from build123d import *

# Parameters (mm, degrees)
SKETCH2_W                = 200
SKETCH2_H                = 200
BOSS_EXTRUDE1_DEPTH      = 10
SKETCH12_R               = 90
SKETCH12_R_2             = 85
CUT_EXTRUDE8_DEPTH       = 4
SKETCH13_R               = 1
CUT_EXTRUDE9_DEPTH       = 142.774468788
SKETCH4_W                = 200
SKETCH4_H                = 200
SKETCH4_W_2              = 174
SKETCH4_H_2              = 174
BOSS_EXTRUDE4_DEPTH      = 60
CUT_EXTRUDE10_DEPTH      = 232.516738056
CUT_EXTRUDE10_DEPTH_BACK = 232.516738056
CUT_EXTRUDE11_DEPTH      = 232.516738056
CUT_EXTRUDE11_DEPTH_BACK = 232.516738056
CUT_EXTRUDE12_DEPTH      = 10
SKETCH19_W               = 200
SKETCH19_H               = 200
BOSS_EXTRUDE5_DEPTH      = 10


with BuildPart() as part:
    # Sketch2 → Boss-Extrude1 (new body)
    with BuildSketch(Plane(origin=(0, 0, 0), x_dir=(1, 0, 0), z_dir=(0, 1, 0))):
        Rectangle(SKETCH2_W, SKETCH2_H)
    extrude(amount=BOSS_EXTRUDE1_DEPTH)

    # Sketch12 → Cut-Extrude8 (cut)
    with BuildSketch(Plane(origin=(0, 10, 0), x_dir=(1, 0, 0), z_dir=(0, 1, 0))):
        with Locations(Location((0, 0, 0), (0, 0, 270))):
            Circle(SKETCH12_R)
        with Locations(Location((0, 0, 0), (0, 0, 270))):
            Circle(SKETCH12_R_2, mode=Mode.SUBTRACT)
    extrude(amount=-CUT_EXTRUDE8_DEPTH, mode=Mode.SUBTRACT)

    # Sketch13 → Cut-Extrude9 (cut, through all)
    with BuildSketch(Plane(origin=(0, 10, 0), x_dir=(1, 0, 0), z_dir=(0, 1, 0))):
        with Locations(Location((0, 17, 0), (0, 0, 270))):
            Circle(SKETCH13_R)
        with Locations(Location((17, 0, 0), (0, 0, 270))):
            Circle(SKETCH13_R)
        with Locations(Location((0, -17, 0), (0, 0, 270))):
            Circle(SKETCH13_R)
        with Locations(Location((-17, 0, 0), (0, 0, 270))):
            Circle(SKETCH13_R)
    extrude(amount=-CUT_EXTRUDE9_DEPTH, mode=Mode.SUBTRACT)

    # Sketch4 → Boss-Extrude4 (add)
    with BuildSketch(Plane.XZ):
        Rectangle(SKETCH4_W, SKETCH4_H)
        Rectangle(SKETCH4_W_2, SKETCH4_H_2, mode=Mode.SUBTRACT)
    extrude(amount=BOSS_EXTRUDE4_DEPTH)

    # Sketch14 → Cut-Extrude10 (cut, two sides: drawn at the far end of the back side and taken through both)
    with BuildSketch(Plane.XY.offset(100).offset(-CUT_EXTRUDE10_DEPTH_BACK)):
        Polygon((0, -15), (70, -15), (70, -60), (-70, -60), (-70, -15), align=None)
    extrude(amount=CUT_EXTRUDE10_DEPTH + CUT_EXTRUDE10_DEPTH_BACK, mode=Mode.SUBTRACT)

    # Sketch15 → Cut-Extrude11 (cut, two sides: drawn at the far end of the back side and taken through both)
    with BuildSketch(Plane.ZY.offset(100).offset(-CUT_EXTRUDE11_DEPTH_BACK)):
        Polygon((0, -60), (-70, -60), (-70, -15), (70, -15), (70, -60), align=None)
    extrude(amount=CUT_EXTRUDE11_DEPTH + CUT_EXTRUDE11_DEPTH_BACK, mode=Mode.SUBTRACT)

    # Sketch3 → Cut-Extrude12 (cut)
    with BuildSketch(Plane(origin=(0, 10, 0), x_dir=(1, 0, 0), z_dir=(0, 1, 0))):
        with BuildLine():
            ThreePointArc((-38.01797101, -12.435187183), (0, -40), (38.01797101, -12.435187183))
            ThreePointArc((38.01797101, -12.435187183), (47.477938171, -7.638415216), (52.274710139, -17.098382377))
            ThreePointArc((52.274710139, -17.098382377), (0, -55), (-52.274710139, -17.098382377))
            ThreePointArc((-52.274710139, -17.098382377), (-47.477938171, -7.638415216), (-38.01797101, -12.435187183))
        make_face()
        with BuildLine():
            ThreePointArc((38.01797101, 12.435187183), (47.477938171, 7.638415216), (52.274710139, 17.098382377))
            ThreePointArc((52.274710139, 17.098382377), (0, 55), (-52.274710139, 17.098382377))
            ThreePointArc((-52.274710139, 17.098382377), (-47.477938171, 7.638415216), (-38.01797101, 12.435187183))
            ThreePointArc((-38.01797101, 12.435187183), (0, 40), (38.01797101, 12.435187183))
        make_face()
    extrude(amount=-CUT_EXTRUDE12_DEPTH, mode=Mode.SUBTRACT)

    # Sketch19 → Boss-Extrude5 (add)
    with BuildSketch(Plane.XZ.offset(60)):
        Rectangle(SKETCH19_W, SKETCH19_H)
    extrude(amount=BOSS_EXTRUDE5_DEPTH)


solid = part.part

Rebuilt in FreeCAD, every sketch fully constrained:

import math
import FreeCAD as App
import Part
import Sketcher

V = App.Vector

doc = App.newDocument("Part")
params = doc.addObject("Spreadsheet::Sheet", "Params")
for row, (alias, value) in enumerate([
    ("sketch1_width", "200 mm"),
    ("pad1_length", "10 mm"),
    ("sketch2_diameter", "180 mm"),
    ("sketch2_diameter2", "170 mm"),
    ("pocket1_length", "4 mm"),
    ("sketch3_diameter", "2 mm"),
    ("sketch4_width", "200 mm"),
    ("sketch4_width2", "174 mm"),
    ("pad2_length", "60 mm"),
    ("sketch5_width", "140 mm"),
    ("sketch5_height", "45 mm"),
    ("sketch6_width", "45 mm"),
    ("sketch6_height", "140 mm"),
    ("sketch7_radius", "40 mm"),
    ("sketch7_radius2", "55 mm"),
    ("pocket5_length", "10 mm"),
    ("sketch8_width", "200 mm"),
    ("pad3_length", "10 mm"),
], start=1):
    params.set(f"A{row}", alias)
    params.set(f"B{row}", "=" + value)
    params.setAlias(f"B{row}", alias)

body = doc.addObject("PartDesign::Body", "Body")

sketch1 = body.newObject("Sketcher::SketchObject", "Sketch")
sketch1.AttachmentSupport = (doc.getObject("XZ_Plane"), [""])
sketch1.MapMode = "FlatFace"
sketch1.addGeometry(Part.LineSegment(V(-100, -100, 0), V(-100, 100, 0)), False)
sketch1.addGeometry(Part.LineSegment(V(-100, 100, 0), V(100, 100, 0)), False)
sketch1.addGeometry(Part.LineSegment(V(100, 100, 0), V(100, -100, 0)), False)
sketch1.addGeometry(Part.LineSegment(V(100, -100, 0), V(-100, -100, 0)), False)
sketch1.addConstraint(Sketcher.Constraint("Coincident", 0, 2, 1, 1))
sketch1.addConstraint(Sketcher.Constraint("Coincident", 1, 2, 2, 1))
sketch1.addConstraint(Sketcher.Constraint("Coincident", 2, 2, 3, 1))
sketch1.addConstraint(Sketcher.Constraint("Coincident", 3, 2, 0, 1))
sketch1.addConstraint(Sketcher.Constraint("Vertical", 0))
sketch1.addConstraint(Sketcher.Constraint("Horizontal", 1))
sketch1.addConstraint(Sketcher.Constraint("Vertical", 2))
sketch1.addConstraint(Sketcher.Constraint("Horizontal", 3))
sketch1.addConstraint(Sketcher.Constraint("Symmetric", 0, 2, 2, 2, -1, 1))
sketch1.addConstraint(Sketcher.Constraint("Equal", 3, 0))
sketch1.addConstraint(Sketcher.Constraint("DistanceX", 1, 1, 1, 2, 200.0))
sketch1.setExpression("Constraints[10]", "Params.sketch1_width")
pad1 = body.newObject("PartDesign::Pad", "Pad")
pad1.Profile = sketch1
pad1.setExpression("Length", "Params.pad1_length")
pad1.Reversed = True

sketch2 = body.newObject("Sketcher::SketchObject", "Sketch001")
sketch2.AttachmentSupport = (doc.getObject("XZ_Plane"), [""])
sketch2.MapMode = "FlatFace"
sketch2.AttachmentOffset = App.Placement(V(0, 0, -10), App.Rotation())
sketch2.addGeometry(Part.Circle(V(0, 0, 0), V(0, 0, 1), 90), False)
sketch2.addGeometry(Part.Circle(V(0, 0, 0), V(0, 0, 1), 85), False)
sketch2.addConstraint(Sketcher.Constraint("Coincident", 0, 3, -1, 1))
sketch2.addConstraint(Sketcher.Constraint("Coincident", 1, 3, -1, 1))
sketch2.addConstraint(Sketcher.Constraint("Diameter", 0, 180.0))
sketch2.addConstraint(Sketcher.Constraint("Diameter", 1, 170.0))
sketch2.setExpression("Constraints[2]", "Params.sketch2_diameter")
sketch2.setExpression("Constraints[3]", "Params.sketch2_diameter2")
pocket1 = body.newObject("PartDesign::Pocket", "Pocket")
pocket1.Profile = sketch2
pocket1.setExpression("Length", "Params.pocket1_length")
pocket1.Reversed = True

sketch3 = body.newObject("Sketcher::SketchObject", "Sketch002")
sketch3.AttachmentSupport = (doc.getObject("XZ_Plane"), [""])
sketch3.MapMode = "FlatFace"
sketch3.AttachmentOffset = App.Placement(V(0, 0, -10), App.Rotation())
sketch3.addGeometry(Part.Circle(V(0, -17, 0), V(0, 0, 1), 1), False)
sketch3.addGeometry(Part.Circle(V(17, 0, 0), V(0, 0, 1), 1), False)
sketch3.addGeometry(Part.Circle(V(0, 17, 0), V(0, 0, 1), 1), False)
sketch3.addGeometry(Part.Circle(V(-17, 0, 0), V(0, 0, 1), 1), False)
sketch3.addConstraint(Sketcher.Constraint("Equal", 0, 1))
sketch3.addConstraint(Sketcher.Constraint("Equal", 1, 2))
sketch3.addConstraint(Sketcher.Constraint("Equal", 2, 3))
sketch3.addConstraint(Sketcher.Constraint("Symmetric", 0, 3, 2, 3, -1, 1))
sketch3.addConstraint(Sketcher.Constraint("Symmetric", 1, 3, 3, 3, -1, 1))
sketch3.addConstraint(Sketcher.Constraint("PointOnObject", 0, 3, -2))
sketch3.addConstraint(Sketcher.Constraint("PointOnObject", 1, 3, -1))
sketch3.addConstraint(Sketcher.Constraint("Diameter", 0, 2.0))
sketch3.addConstraint(Sketcher.Constraint("DistanceY", 0, 3, -1, 1, 17.0))
sketch3.addConstraint(Sketcher.Constraint("DistanceX", -1, 1, 1, 3, 17.0))
sketch3.setExpression("Constraints[7]", "Params.sketch3_diameter")
pocket2 = body.newObject("PartDesign::Pocket", "Pocket001")
pocket2.Profile = sketch3
pocket2.Type = "ThroughAll"
pocket2.Reversed = True

sketch4 = body.newObject("Sketcher::SketchObject", "Sketch003")
sketch4.AttachmentSupport = (doc.getObject("XZ_Plane"), [""])
sketch4.MapMode = "FlatFace"
sketch4.addGeometry(Part.LineSegment(V(-100, 100, 0), V(-100, -100, 0)), False)
sketch4.addGeometry(Part.LineSegment(V(-100, -100, 0), V(100, -100, 0)), False)
sketch4.addGeometry(Part.LineSegment(V(100, -100, 0), V(100, 100, 0)), False)
sketch4.addGeometry(Part.LineSegment(V(100, 100, 0), V(-100, 100, 0)), False)
sketch4.addGeometry(Part.LineSegment(V(87, -87, 0), V(-87, -87, 0)), False)
sketch4.addGeometry(Part.LineSegment(V(-87, -87, 0), V(-87, 87, 0)), False)
sketch4.addGeometry(Part.LineSegment(V(-87, 87, 0), V(87, 87, 0)), False)
sketch4.addGeometry(Part.LineSegment(V(87, 87, 0), V(87, -87, 0)), False)
sketch4.addConstraint(Sketcher.Constraint("Coincident", 0, 2, 1, 1))
sketch4.addConstraint(Sketcher.Constraint("Coincident", 1, 2, 2, 1))
sketch4.addConstraint(Sketcher.Constraint("Coincident", 2, 2, 3, 1))
sketch4.addConstraint(Sketcher.Constraint("Coincident", 3, 2, 0, 1))
sketch4.addConstraint(Sketcher.Constraint("Coincident", 4, 2, 5, 1))
sketch4.addConstraint(Sketcher.Constraint("Coincident", 5, 2, 6, 1))
sketch4.addConstraint(Sketcher.Constraint("Coincident", 6, 2, 7, 1))
sketch4.addConstraint(Sketcher.Constraint("Coincident", 7, 2, 4, 1))
sketch4.addConstraint(Sketcher.Constraint("Vertical", 0))
sketch4.addConstraint(Sketcher.Constraint("Horizontal", 1))
sketch4.addConstraint(Sketcher.Constraint("Vertical", 2))
sketch4.addConstraint(Sketcher.Constraint("Horizontal", 3))
sketch4.addConstraint(Sketcher.Constraint("Horizontal", 4))
sketch4.addConstraint(Sketcher.Constraint("Vertical", 5))
sketch4.addConstraint(Sketcher.Constraint("Horizontal", 6))
sketch4.addConstraint(Sketcher.Constraint("Vertical", 7))
sketch4.addConstraint(Sketcher.Constraint("Symmetric", 0, 2, 2, 2, -1, 1))
sketch4.addConstraint(Sketcher.Constraint("Symmetric", 4, 2, 6, 2, -1, 1))
sketch4.addConstraint(Sketcher.Constraint("Equal", 3, 0))
sketch4.addConstraint(Sketcher.Constraint("Equal", 6, 5))
sketch4.addConstraint(Sketcher.Constraint("DistanceX", 1, 1, 1, 2, 200.0))
sketch4.addConstraint(Sketcher.Constraint("DistanceX", 4, 2, 4, 1, 174.0))
sketch4.setExpression("Constraints[20]", "Params.sketch4_width")
sketch4.setExpression("Constraints[21]", "Params.sketch4_width2")
pad2 = body.newObject("PartDesign::Pad", "Pad001")
pad2.Profile = sketch4
pad2.setExpression("Length", "Params.pad2_length")

sketch5 = body.newObject("Sketcher::SketchObject", "Sketch004")
sketch5.AttachmentSupport = (doc.getObject("XY_Plane"), [""])
sketch5.MapMode = "FlatFace"
sketch5.AttachmentOffset = App.Placement(V(0, 0, 100), App.Rotation())
sketch5.addGeometry(Part.LineSegment(V(70, -15, 0), V(-70, -15, 0)), False)
sketch5.addGeometry(Part.LineSegment(V(-70, -15, 0), V(-70, -60, 0)), False)
sketch5.addGeometry(Part.LineSegment(V(-70, -60, 0), V(70, -60, 0)), False)
sketch5.addGeometry(Part.LineSegment(V(70, -60, 0), V(70, -15, 0)), False)
sketch5.addConstraint(Sketcher.Constraint("Coincident", 0, 2, 1, 1))
sketch5.addConstraint(Sketcher.Constraint("Coincident", 1, 2, 2, 1))
sketch5.addConstraint(Sketcher.Constraint("Coincident", 2, 2, 3, 1))
sketch5.addConstraint(Sketcher.Constraint("Coincident", 3, 2, 0, 1))
sketch5.addConstraint(Sketcher.Constraint("Horizontal", 0))
sketch5.addConstraint(Sketcher.Constraint("Vertical", 1))
sketch5.addConstraint(Sketcher.Constraint("Horizontal", 2))
sketch5.addConstraint(Sketcher.Constraint("Vertical", 3))
sketch5.addConstraint(Sketcher.Constraint("DistanceX", 0, 2, 0, 1, 140.0))
sketch5.addConstraint(Sketcher.Constraint("DistanceY", 1, 2, 1, 1, 45.0))
sketch5.addConstraint(Sketcher.Constraint("DistanceX", 0, 2, -1, 1, 70.0))
sketch5.addConstraint(Sketcher.Constraint("DistanceY", 0, 2, -1, 1, 15.0))
sketch5.setExpression("Constraints[8]", "Params.sketch5_width")
sketch5.setExpression("Constraints[9]", "Params.sketch5_height")
pocket3 = body.newObject("PartDesign::Pocket", "Pocket002")
pocket3.Profile = sketch5
pocket3.Type = "ThroughAll"
pocket3.Midplane = True

sketch6 = body.newObject("Sketcher::SketchObject", "Sketch005")
sketch6.AttachmentSupport = (doc.getObject("YZ_Plane"), [""])
sketch6.MapMode = "FlatFace"
sketch6.AttachmentOffset = App.Placement(V(0, 0, -100), App.Rotation())
sketch6.addGeometry(Part.LineSegment(V(-60, -70, 0), V(-60, 70, 0)), False)
sketch6.addGeometry(Part.LineSegment(V(-60, 70, 0), V(-15, 70, 0)), False)
sketch6.addGeometry(Part.LineSegment(V(-15, 70, 0), V(-15, -70, 0)), False)
sketch6.addGeometry(Part.LineSegment(V(-15, -70, 0), V(-60, -70, 0)), False)
sketch6.addConstraint(Sketcher.Constraint("Coincident", 0, 2, 1, 1))
sketch6.addConstraint(Sketcher.Constraint("Coincident", 1, 2, 2, 1))
sketch6.addConstraint(Sketcher.Constraint("Coincident", 2, 2, 3, 1))
sketch6.addConstraint(Sketcher.Constraint("Coincident", 3, 2, 0, 1))
sketch6.addConstraint(Sketcher.Constraint("Vertical", 0))
sketch6.addConstraint(Sketcher.Constraint("Horizontal", 1))
sketch6.addConstraint(Sketcher.Constraint("Vertical", 2))
sketch6.addConstraint(Sketcher.Constraint("Horizontal", 3))
sketch6.addConstraint(Sketcher.Constraint("DistanceX", 1, 1, 1, 2, 45.0))
sketch6.addConstraint(Sketcher.Constraint("DistanceY", 0, 1, 0, 2, 140.0))
sketch6.addConstraint(Sketcher.Constraint("DistanceX", 0, 2, -1, 1, 60.0))
sketch6.addConstraint(Sketcher.Constraint("DistanceY", -1, 1, 0, 2, 70.0))
sketch6.setExpression("Constraints[8]", "Params.sketch6_width")
sketch6.setExpression("Constraints[9]", "Params.sketch6_height")
pocket4 = body.newObject("PartDesign::Pocket", "Pocket003")
pocket4.Profile = sketch6
pocket4.Type = "ThroughAll"
pocket4.Midplane = True

sketch7 = body.newObject("Sketcher::SketchObject", "Sketch006")
sketch7.AttachmentSupport = (doc.getObject("XZ_Plane"), [""])
sketch7.MapMode = "FlatFace"
sketch7.AttachmentOffset = App.Placement(V(0, 0, -10), App.Rotation())
sketch7.addGeometry(Part.ArcOfCircle(Part.Circle(V(0, 0, 0), V(0, 0, 1), 40), math.radians(18), math.radians(162)), False)
sketch7.addGeometry(Part.ArcOfCircle(Part.Circle(V(-45, 15, 0), V(0, 0, 1), 8), math.radians(162), math.radians(342)), False)
sketch7.addGeometry(Part.ArcOfCircle(Part.Circle(V(0, 0, 0), V(0, 0, 1), 55), math.radians(18), math.radians(162)), False)
sketch7.addGeometry(Part.ArcOfCircle(Part.Circle(V(45, 15, 0), V(0, 0, 1), 8), math.radians(-162), math.radians(18)), False)
sketch7.addGeometry(Part.ArcOfCircle(Part.Circle(V(45, -15, 0), V(0, 0, 1), 8), math.radians(-18), math.radians(162)), False)
sketch7.addGeometry(Part.ArcOfCircle(Part.Circle(V(0, 0, 0), V(0, 0, 1), 55), math.radians(-162), math.radians(-18)), False)
sketch7.addGeometry(Part.ArcOfCircle(Part.Circle(V(-45, -15, 0), V(0, 0, 1), 8), math.radians(18), math.radians(198)), False)
sketch7.addGeometry(Part.ArcOfCircle(Part.Circle(V(0, 0, 0), V(0, 0, 1), 40), math.radians(-162), math.radians(-18)), False)
sketch7.addConstraint(Sketcher.Constraint("Tangent", 0, 2, 1, 2))
sketch7.addConstraint(Sketcher.Constraint("Tangent", 1, 1, 2, 2))
sketch7.addConstraint(Sketcher.Constraint("Tangent", 2, 1, 3, 2))
sketch7.addConstraint(Sketcher.Constraint("Tangent", 3, 1, 0, 1))
sketch7.addConstraint(Sketcher.Constraint("Tangent", 4, 1, 5, 2))
sketch7.addConstraint(Sketcher.Constraint("Tangent", 5, 1, 6, 2))
sketch7.addConstraint(Sketcher.Constraint("Tangent", 6, 1, 7, 1))
sketch7.addConstraint(Sketcher.Constraint("Tangent", 7, 2, 4, 2))
sketch7.addConstraint(Sketcher.Constraint("Coincident", 0, 3, -1, 1))
sketch7.addConstraint(Sketcher.Constraint("Coincident", 2, 3, -1, 1))
sketch7.addConstraint(Sketcher.Constraint("Coincident", 5, 3, -1, 1))
sketch7.addConstraint(Sketcher.Constraint("Coincident", 7, 3, -1, 1))
sketch7.addConstraint(Sketcher.Constraint("Equal", 3, 4))
sketch7.addConstraint(Sketcher.Constraint("Equal", 2, 5))
sketch7.addConstraint(Sketcher.Constraint("Horizontal", 1, 3, 3, 3))
sketch7.addConstraint(Sketcher.Constraint("Horizontal", 4, 3, 6, 3))
sketch7.addConstraint(Sketcher.Constraint("Vertical", 3, 3, 4, 3))
sketch7.addConstraint(Sketcher.Constraint("Radius", 0, 40.0))
sketch7.addConstraint(Sketcher.Constraint("Radius", 2, 55.0))
sketch7.addConstraint(Sketcher.Constraint("DistanceX", 1, 3, -1, 1, 45.146341))
sketch7.setExpression("Constraints[17]", "Params.sketch7_radius")
sketch7.setExpression("Constraints[18]", "Params.sketch7_radius2")
pocket5 = body.newObject("PartDesign::Pocket", "Pocket004")
pocket5.Profile = sketch7
pocket5.setExpression("Length", "Params.pocket5_length")
pocket5.Reversed = True

sketch8 = body.newObject("Sketcher::SketchObject", "Sketch007")
sketch8.AttachmentSupport = (doc.getObject("XZ_Plane"), [""])
sketch8.MapMode = "FlatFace"
sketch8.AttachmentOffset = App.Placement(V(0, 0, 60), App.Rotation())
sketch8.addGeometry(Part.LineSegment(V(-100, 100, 0), V(-100, -100, 0)), False)
sketch8.addGeometry(Part.LineSegment(V(-100, -100, 0), V(100, -100, 0)), False)
sketch8.addGeometry(Part.LineSegment(V(100, -100, 0), V(100, 100, 0)), False)
sketch8.addGeometry(Part.LineSegment(V(100, 100, 0), V(-100, 100, 0)), False)
sketch8.addConstraint(Sketcher.Constraint("Coincident", 0, 2, 1, 1))
sketch8.addConstraint(Sketcher.Constraint("Coincident", 1, 2, 2, 1))
sketch8.addConstraint(Sketcher.Constraint("Coincident", 2, 2, 3, 1))
sketch8.addConstraint(Sketcher.Constraint("Coincident", 3, 2, 0, 1))
sketch8.addConstraint(Sketcher.Constraint("Vertical", 0))
sketch8.addConstraint(Sketcher.Constraint("Horizontal", 1))
sketch8.addConstraint(Sketcher.Constraint("Vertical", 2))
sketch8.addConstraint(Sketcher.Constraint("Horizontal", 3))
sketch8.addConstraint(Sketcher.Constraint("Symmetric", 0, 2, 2, 2, -1, 1))
sketch8.addConstraint(Sketcher.Constraint("Equal", 3, 0))
sketch8.addConstraint(Sketcher.Constraint("DistanceX", 1, 1, 1, 2, 200.0))
sketch8.setExpression("Constraints[10]", "Params.sketch8_width")
pad3 = body.newObject("PartDesign::Pad", "Pad002")
pad3.Profile = sketch8
pad3.setExpression("Length", "Params.pad3_length")

doc.recompute()
